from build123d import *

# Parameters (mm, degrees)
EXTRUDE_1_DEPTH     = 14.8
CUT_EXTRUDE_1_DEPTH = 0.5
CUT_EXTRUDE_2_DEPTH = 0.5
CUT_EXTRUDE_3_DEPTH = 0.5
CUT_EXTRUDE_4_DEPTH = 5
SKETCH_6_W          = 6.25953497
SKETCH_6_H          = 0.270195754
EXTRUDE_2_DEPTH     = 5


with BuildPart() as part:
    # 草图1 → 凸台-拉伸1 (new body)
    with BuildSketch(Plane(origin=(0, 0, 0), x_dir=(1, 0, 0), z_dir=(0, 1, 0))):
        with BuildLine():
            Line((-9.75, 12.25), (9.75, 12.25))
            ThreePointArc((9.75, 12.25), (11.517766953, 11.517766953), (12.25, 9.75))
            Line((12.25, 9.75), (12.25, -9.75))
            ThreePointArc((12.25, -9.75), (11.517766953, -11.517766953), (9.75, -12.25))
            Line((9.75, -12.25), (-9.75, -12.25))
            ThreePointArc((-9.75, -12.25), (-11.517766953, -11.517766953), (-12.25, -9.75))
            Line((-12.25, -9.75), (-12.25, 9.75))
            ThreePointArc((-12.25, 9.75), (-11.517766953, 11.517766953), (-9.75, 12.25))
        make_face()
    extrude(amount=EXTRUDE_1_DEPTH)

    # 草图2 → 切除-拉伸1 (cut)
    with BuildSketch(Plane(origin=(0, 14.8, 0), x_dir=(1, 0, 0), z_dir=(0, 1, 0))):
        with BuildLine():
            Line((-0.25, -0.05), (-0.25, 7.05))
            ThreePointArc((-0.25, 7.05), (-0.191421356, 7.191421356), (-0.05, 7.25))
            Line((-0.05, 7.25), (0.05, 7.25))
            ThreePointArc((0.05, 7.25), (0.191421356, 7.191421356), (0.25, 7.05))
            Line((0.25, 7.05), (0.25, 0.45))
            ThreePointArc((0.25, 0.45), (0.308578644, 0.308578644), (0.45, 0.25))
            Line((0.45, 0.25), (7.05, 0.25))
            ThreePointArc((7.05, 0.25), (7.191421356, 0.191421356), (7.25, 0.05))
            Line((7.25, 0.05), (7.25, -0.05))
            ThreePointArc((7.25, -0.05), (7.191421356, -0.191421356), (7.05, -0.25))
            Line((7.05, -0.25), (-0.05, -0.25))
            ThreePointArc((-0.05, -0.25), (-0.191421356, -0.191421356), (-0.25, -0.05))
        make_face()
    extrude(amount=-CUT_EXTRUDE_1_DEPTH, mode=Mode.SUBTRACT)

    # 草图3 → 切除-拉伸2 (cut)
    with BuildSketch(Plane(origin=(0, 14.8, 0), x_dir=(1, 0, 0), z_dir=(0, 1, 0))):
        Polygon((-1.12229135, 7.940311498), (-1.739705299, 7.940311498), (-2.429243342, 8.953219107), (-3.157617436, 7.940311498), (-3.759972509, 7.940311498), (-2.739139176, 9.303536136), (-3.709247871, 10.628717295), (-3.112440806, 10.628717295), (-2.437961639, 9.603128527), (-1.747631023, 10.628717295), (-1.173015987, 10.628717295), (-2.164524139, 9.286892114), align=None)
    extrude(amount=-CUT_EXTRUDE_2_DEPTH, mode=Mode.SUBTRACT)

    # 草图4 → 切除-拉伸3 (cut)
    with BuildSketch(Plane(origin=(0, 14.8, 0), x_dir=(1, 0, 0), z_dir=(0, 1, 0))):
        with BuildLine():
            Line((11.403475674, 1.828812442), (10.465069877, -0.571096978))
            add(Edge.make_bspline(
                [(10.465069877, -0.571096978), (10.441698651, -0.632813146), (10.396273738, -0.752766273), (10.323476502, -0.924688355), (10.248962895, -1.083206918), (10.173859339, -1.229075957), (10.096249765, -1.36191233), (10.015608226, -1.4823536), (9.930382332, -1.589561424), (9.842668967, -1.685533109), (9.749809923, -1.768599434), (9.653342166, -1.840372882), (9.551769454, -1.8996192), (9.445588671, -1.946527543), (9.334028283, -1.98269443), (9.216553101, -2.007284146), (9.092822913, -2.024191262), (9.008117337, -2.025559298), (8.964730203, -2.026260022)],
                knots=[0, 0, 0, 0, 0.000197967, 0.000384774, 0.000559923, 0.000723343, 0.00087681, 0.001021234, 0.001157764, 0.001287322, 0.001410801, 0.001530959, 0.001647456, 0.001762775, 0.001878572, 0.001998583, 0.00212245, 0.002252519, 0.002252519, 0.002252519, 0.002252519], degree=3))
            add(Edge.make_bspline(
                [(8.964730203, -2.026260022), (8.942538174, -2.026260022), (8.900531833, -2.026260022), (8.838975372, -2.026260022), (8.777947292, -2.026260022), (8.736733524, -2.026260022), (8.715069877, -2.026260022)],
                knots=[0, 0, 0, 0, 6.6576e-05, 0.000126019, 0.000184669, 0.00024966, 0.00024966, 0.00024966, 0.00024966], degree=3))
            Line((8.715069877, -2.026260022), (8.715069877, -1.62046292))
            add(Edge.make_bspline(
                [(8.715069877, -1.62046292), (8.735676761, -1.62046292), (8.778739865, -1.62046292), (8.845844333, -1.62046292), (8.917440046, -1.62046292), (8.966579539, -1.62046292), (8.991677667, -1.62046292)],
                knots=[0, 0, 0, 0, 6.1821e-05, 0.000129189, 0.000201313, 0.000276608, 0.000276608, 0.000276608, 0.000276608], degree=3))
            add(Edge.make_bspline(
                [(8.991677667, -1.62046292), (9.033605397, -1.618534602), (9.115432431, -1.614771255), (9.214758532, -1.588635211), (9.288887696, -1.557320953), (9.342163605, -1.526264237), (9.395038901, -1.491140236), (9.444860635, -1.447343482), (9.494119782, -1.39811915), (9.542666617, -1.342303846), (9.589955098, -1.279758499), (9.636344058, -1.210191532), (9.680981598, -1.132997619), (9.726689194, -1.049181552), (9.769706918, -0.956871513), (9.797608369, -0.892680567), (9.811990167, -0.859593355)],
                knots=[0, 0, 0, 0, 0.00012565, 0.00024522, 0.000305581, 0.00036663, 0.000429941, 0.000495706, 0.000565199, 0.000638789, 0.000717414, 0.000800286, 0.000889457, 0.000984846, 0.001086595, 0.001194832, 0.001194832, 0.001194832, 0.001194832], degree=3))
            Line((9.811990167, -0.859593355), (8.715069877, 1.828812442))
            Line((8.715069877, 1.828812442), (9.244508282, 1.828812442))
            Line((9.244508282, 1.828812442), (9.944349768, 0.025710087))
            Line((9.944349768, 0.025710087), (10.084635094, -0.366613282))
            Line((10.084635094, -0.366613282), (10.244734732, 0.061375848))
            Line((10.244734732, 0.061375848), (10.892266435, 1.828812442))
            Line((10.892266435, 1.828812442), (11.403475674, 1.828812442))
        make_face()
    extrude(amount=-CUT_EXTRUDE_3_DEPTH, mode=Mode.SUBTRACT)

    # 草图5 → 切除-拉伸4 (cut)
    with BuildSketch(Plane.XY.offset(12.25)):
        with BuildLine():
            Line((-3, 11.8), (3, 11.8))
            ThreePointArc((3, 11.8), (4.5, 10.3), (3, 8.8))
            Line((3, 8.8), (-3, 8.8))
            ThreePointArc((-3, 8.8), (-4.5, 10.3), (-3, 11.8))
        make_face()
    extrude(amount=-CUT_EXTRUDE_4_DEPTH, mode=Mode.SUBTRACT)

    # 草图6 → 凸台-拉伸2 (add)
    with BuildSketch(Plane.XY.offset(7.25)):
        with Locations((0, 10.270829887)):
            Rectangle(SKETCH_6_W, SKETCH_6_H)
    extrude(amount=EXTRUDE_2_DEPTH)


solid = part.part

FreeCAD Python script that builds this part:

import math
import FreeCAD as App
import Part
import Sketcher

V = App.Vector
Q = App.Units.Quantity


def add_polygon(sketch, points):
    """Adds a closed chain of lines whose ends are joined by coincident constraints."""
    first, n = sketch.GeometryCount, len(points)
    for a, b in zip(points, points[1:] + points[:1]):
        sketch.addGeometry(Part.LineSegment(App.Vector(*a, 0), App.Vector(*b, 0)), False)
    for i in range(n):
        sketch.addConstraint(Sketcher.Constraint("Coincident", first + i, 2, first + (i + 1) % n, 1))

doc = App.newDocument("Part")
params = doc.addObject("Spreadsheet::Sheet", "Params")
for row, (alias, value) in enumerate([
    ("sketch1_radius", "2.5 mm"),
    ("sketch1_width", "19.5 mm"),
    ("pad1_length", "14.8 mm"),
    ("sketch2_radius", "0.2 mm"),
    ("sketch2_width", "7.1 mm"),
    ("sketch2_width2", "6.6 mm"),
    ("pocket1_length", "0.5 mm"),
    ("pocket2_length", "0.5 mm"),
    ("pocket3_length", "0.5 mm"),
    ("sketch5_radius", "1.5 mm"),
    ("sketch5_width", "6 mm"),
    ("pocket4_length", "5 mm"),
    ("pad2_length", "5 mm"),
], start=1):
    params.set(f"A{row}", alias)
    params.set(f"B{row}", "=" + value)
    params.setAlias(f"B{row}", alias)

body = doc.addObject("PartDesign::Body", "Body")

sketch1 = body.newObject("Sketcher::SketchObject", "Sketch")
sketch1.AttachmentSupport = (doc.getObject("XZ_Plane"), [""])
sketch1.MapMode = "FlatFace"
sketch1.addGeometry(Part.LineSegment(V(9.75, -12.25, 0), V(-9.75, -12.25, 0)), False)
sketch1.addGeometry(Part.ArcOfCircle(Part.Circle(V(-9.75, -9.75, 0), V(0, 0, 1), 2.5), math.radians(180), math.radians(270)), False)
sketch1.addGeometry(Part.LineSegment(V(-12.25, -9.75, 0), V(-12.25, 9.75, 0)), False)
sketch1.addGeometry(Part.ArcOfCircle(Part.Circle(V(-9.75, 9.75, 0), V(0, 0, 1), 2.5), math.radians(90), math.radians(180)), False)
sketch1.addGeometry(Part.LineSegment(V(-9.75, 12.25, 0), V(9.75, 12.25, 0)), False)
sketch1.addGeometry(Part.ArcOfCircle(Part.Circle(V(9.75, 9.75, 0), V(0, 0, 1), 2.5), math.radians(0), math.radians(90)), False)
sketch1.addGeometry(Part.LineSegment(V(12.25, 9.75, 0), V(12.25, -9.75, 0)), False)
sketch1.addGeometry(Part.ArcOfCircle(Part.Circle(V(9.75, -9.75, 0), V(0, 0, 1), 2.5), math.radians(-90), math.radians(0)), False)
sketch1.addConstraint(Sketcher.Constraint("Tangent", 0, 2, 1, 2))
sketch1.addConstraint(Sketcher.Constraint("Tangent", 1, 1, 2, 1))
sketch1.addConstraint(Sketcher.Constraint("Tangent", 2, 2, 3, 2))
sketch1.addConstraint(Sketcher.Constraint("Tangent", 3, 1, 4, 1))
sketch1.addConstraint(Sketcher.Constraint("Tangent", 4, 2, 5, 2))
sketch1.addConstraint(Sketcher.Constraint("Tangent", 5, 1, 6, 1))
sketch1.addConstraint(Sketcher.Constraint("Tangent", 6, 2, 7, 2))
sketch1.addConstraint(Sketcher.Constraint("Tangent", 7, 1, 0, 1))
sketch1.addConstraint(Sketcher.Constraint("Horizontal", 0))
sketch1.addConstraint(Sketcher.Constraint("Vertical", 2))
sketch1.addConstraint(Sketcher.Constraint("Horizontal", 4))
sketch1.addConstraint(Sketcher.Constraint("Vertical", 6))
sketch1.addConstraint(Sketcher.Constraint("Equal", 1, 3))
sketch1.addConstraint(Sketcher.Constraint("Equal", 3, 5))
sketch1.addConstraint(Sketcher.Constraint("Equal", 5, 7))
sketch1.addConstraint(Sketcher.Constraint("Symmetric", 1, 3, 5, 3, -1, 1))
sketch1.addConstraint(Sketcher.Constraint("Equal", 4, 2))
sketch1.addConstraint(Sketcher.Constraint("Radius", 1, Q("2.5 mm")))
sketch1.addConstraint(Sketcher.Constraint("DistanceX", 0, 2, 0, 1, Q("19.5 mm")))
sketch1.setExpression("Constraints[17]", "Params.sketch1_radius")
sketch1.setExpression("Constraints[18]", "Params.sketch1_width")
pad1 = body.newObject("PartDesign::Pad", "Pad")
pad1.Profile = sketch1
pad1.setExpression("Length", "Params.pad1_length")
pad1.Reversed = True

sketch2 = body.newObject("Sketcher::SketchObject", "Sketch001")
sketch2.AttachmentSupport = (doc.getObject("XZ_Plane"), [""])
sketch2.MapMode = "FlatFace"
sketch2.AttachmentOffset = App.Placement(V(0, 0, -14.8), App.Rotation())
sketch2.addGeometry(Part.LineSegment(V(-0.25, -7.05, 0), V(-0.25, 0.05, 0)), False)
sketch2.addGeometry(Part.ArcOfCircle(Part.Circle(V(-0.05, 0.05, 0), V(0, 0, 1), 0.2), math.radians(90), math.radians(180)), False)
sketch2.addGeometry(Part.LineSegment(V(-0.05, 0.25, 0), V(7.05, 0.25, 0)), False)
sketch2.addGeometry(Part.ArcOfCircle(Part.Circle(V(7.05, 0.05, 0), V(0, 0, 1), 0.2), math.radians(0), math.radians(90)), False)
sketch2.addGeometry(Part.LineSegment(V(7.25, 0.05, 0), V(7.25, -0.05, 0)), False)
sketch2.addGeometry(Part.ArcOfCircle(Part.Circle(V(7.05, -0.05, 0), V(0, 0, 1), 0.2), math.radians(-90), math.radians(0)), False)
sketch2.addGeometry(Part.LineSegment(V(7.05, -0.25, 0), V(0.45, -0.25, 0)), False)
sketch2.addGeometry(Part.ArcOfCircle(Part.Circle(V(0.45, -0.45, 0), V(0, 0, 1), 0.2), math.radians(90), math.radians(180)), False)
sketch2.addGeometry(Part.LineSegment(V(0.25, -0.45, 0), V(0.25, -7.05, 0)), False)
sketch2.addGeometry(Part.ArcOfCircle(Part.Circle(V(0.05, -7.05, 0), V(0, 0, 1), 0.2), math.radians(-90), math.radians(0)), False)
sketch2.addGeometry(Part.LineSegment(V(0.05, -7.25, 0), V(-0.05, -7.25, 0)), False)
sketch2.addGeometry(Part.ArcOfCircle(Part.Circle(V(-0.05, -7.05, 0), V(0, 0, 1), 0.2), math.radians(-180), math.radians(-90)), False)
sketch2.addConstraint(Sketcher.Constraint("Tangent", 0, 2, 1, 2))
sketch2.addConstraint(Sketcher.Constraint("Tangent", 1, 1, 2, 1))
sketch2.addConstraint(Sketcher.Constraint("Tangent", 2, 2, 3, 2))
sketch2.addConstraint(Sketcher.Constraint("Tangent", 3, 1, 4, 1))
sketch2.addConstraint(Sketcher.Constraint("Tangent", 4, 2, 5, 2))
sketch2.addConstraint(Sketcher.Constraint("Tangent", 5, 1, 6, 1))
sketch2.addConstraint(Sketcher.Constraint("Tangent", 6, 2, 7, 1))
sketch2.addConstraint(Sketcher.Constraint("Tangent", 7, 2, 8, 1))
sketch2.addConstraint(Sketcher.Constraint("Tangent", 8, 2, 9, 2))
sketch2.addConstraint(Sketcher.Constraint("Tangent", 9, 1, 10, 1))
sketch2.addConstraint(Sketcher.Constraint("Tangent", 10, 2, 11, 2))
sketch2.addConstraint(Sketcher.Constraint("Tangent", 11, 1, 0, 1))
sketch2.addConstraint(Sketcher.Constraint("Vertical", 0))
sketch2.addConstraint(Sketcher.Constraint("Horizontal", 2))
sketch2.addConstraint(Sketcher.Constraint("Vertical", 4))
sketch2.addConstraint(Sketcher.Constraint("Horizontal", 6))
sketch2.addConstraint(Sketcher.Constraint("Vertical", 8))
sketch2.addConstraint(Sketcher.Constraint("Horizontal", 10))
sketch2.addConstraint(Sketcher.Constraint("Equal", 1, 3))
sketch2.addConstraint(Sketcher.Constraint("Equal", 3, 5))
sketch2.addConstraint(Sketcher.Constraint("Equal", 5, 7))
sketch2.addConstraint(Sketcher.Constraint("Equal", 7, 9))
sketch2.addConstraint(Sketcher.Constraint("Equal", 9, 11))
sketch2.addConstraint(Sketcher.Constraint("Equal", 2, 0))
sketch2.addConstraint(Sketcher.Constraint("Equal", 10, 4))
sketch2.addConstraint(Sketcher.Constraint("Radius", 1, Q("0.2 mm")))
sketch2.addConstraint(Sketcher.Constraint("DistanceX", 2, 1, 2, 2, Q("7.1 mm")))
sketch2.addConstraint(Sketcher.Constraint("DistanceX", 6, 2, 6, 1, Q("6.6 mm")))
sketch2.addConstraint(Sketcher.Constraint("DistanceX", 1, 3, -1, 1, Q("0.05 mm")))
sketch2.addConstraint(Sketcher.Constraint("DistanceY", -1, 1, 1, 3, Q("0.05 mm")))
sketch2.setExpression("Constraints[25]", "Params.sketch2_radius")
sketch2.setExpression("Constraints[26]", "Params.sketch2_width")
sketch2.setExpression("Constraints[27]", "Params.sketch2_width2")
pocket1 = body.newObject("PartDesign::Pocket", "Pocket")
pocket1.Profile = sketch2
pocket1.setExpression("Length", "Params.pocket1_length")
pocket1.Reversed = True

sketch3 = body.newObject("Sketcher::SketchObject", "Sketch002")
sketch3.AttachmentSupport = (doc.getObject("XZ_Plane"), [""])
sketch3.MapMode = "FlatFace"
sketch3.AttachmentOffset = App.Placement(V(0, 0, -14.8), App.Rotation())
add_polygon(sketch3, [(-1.739705, -7.940311), (-1.122291, -7.940311), (-2.164524, -9.286892), (-1.173016, -10.628717), (-1.747631, -10.628717), (-2.437962, -9.603129), (-3.112441, -10.628717), (-3.709248, -10.628717), (-2.739139, -9.303536), (-3.759973, -7.940311), (-3.157617, -7.940311), (-2.429243, -8.953219)])
sketch3.addConstraint(Sketcher.Constraint("Horizontal", 0))
sketch3.addConstraint(Sketcher.Constraint("Horizontal", 3))
sketch3.addConstraint(Sketcher.Constraint("Horizontal", 6))
sketch3.addConstraint(Sketcher.Constraint("Horizontal", 9))
sketch3.addConstraint(Sketcher.Constraint("Horizontal", 3, 2, 5, 2))
sketch3.addConstraint(Sketcher.Constraint("Horizontal", 0, 2, 8, 2))
sketch3.addConstraint(Sketcher.Constraint("Distance", 1, Q("1.7028 mm")))
sketch3.addConstraint(Sketcher.Constraint("Distance", 5, Q("1.227499 mm")))
sketch3.addConstraint(Sketcher.Constraint("Distance", 10, Q("1.247602 mm")))
sketch3.addConstraint(Sketcher.Constraint("DistanceX", 5, 2, 7, 2, Q("0.373302 mm")))
sketch3.addConstraint(Sketcher.Constraint("Distance", 4, Q("1.23628 mm")))
sketch3.addConstraint(Sketcher.Constraint("Distance", 7, Q("1.64232 mm")))
sketch3.addConstraint(Sketcher.Constraint("Distance", 8, Q("1.70308 mm")))
sketch3.addConstraint(Sketcher.Constraint("DistanceX", 0, 1, 0, 2, Q("0.617414 mm")))
sketch3.addConstraint(Sketcher.Constraint("DistanceX", 3, 2, 3, 1, Q("0.574615 mm")))
sketch3.addConstraint(Sketcher.Constraint("DistanceX", 6, 2, 6, 1, Q("0.596807 mm")))
sketch3.addConstraint(Sketcher.Constraint("DistanceX", 9, 1, 9, 2, Q("0.602355 mm")))
sketch3.addConstraint(Sketcher.Constraint("DistanceX", 0, 2, -1, 1, Q("1.122291 mm")))
sketch3.addConstraint(Sketcher.Constraint("DistanceY", 0, 2, -1, 1, Q("7.940311 mm")))
sketch3.addConstraint(Sketcher.Constraint("DistanceX", 3, 2, -1, 1, Q("1.747631 mm")))
sketch3.addConstraint(Sketcher.Constraint("DistanceX", 4, 2, -1, 1, Q("2.437962 mm")))
sketch3.addConstraint(Sketcher.Constraint("DistanceY", 4, 2, -1, 1, Q("9.603129 mm")))
sketch3.addConstraint(Sketcher.Constraint("DistanceY", 10, 2, -1, 1, Q("8.953219 mm")))
sketch3.addConstraint(Sketcher.Constraint("DistanceY", 1, 2, 0, 2, Q("1.346581 mm")))
pocket2 = body.newObject("PartDesign::Pocket", "Pocket001")
pocket2.Profile = sketch3
pocket2.setExpression("Length", "Params.pocket2_length")
pocket2.Reversed = True

sketch4 = body.newObject("Sketcher::SketchObject", "Sketch003")
sketch4.AttachmentSupport = (doc.getObject("XZ_Plane"), [""])
sketch4.MapMode = "FlatFace"
sketch4.AttachmentOffset = App.Placement(V(0, 0, -14.8), App.Rotation())
sketch4.addGeometry(Part.LineSegment(V(10.46507, 0.571097, 0), V(11.403476, -1.828812, 0)), False)
sketch4.addGeometry(Part.LineSegment(V(11.403476, -1.828812, 0), V(10.892266, -1.828812, 0)), False)
sketch4.addGeometry(Part.LineSegment(V(10.892266, -1.828812, 0), V(10.244735, -0.061376, 0)), False)
sketch4.addGeometry(Part.LineSegment(V(10.244735, -0.061376, 0), V(10.084635, 0.366613, 0)), False)
sketch4.addGeometry(Part.LineSegment(V(10.084635, 0.366613, 0), V(9.94435, -0.02571, 0)), False)
sketch4.addGeometry(Part.LineSegment(V(9.94435, -0.02571, 0), V(9.244508, -1.828812, 0)), False)
sketch4.addGeometry(Part.LineSegment(V(9.244508, -1.828812, 0), V(8.71507, -1.828812, 0)), False)
sketch4.addGeometry(Part.LineSegment(V(8.71507, -1.828812, 0), V(9.81199, 0.859593, 0)), False)
sketch4.addGeometry(Part.BSplineCurve([V(8.991678, 1.620463, 0), V(9.033605, 1.618535, 0), V(9.115432, 1.614771, 0), V(9.214759, 1.588635, 0), V(9.288888, 1.557321, 0), V(9.342164, 1.526264, 0), V(9.395039, 1.49114, 0), V(9.444861, 1.447343, 0), V(9.49412, 1.398119, 0), V(9.542667, 1.342304, 0), V(9.589955, 1.279758, 0), V(9.636344, 1.210192, 0), V(9.680982, 1.132998, 0), V(9.726689, 1.049182, 0), V(9.769707, 0.956872, 0), V(9.797608, 0.892681, 0), V(9.81199, 0.859593, 0)], [4, 1, 1, 1, 1, 1, 1, 1, 1, 1, 1, 1, 1, 1, 4], [0, 0.00012565, 0.00024522, 0.000305581, 0.00036663, 0.000429941, 0.000495706, 0.000565199, 0.000638789, 0.000717414, 0.000800286, 0.000889457, 0.000984846, 0.001086595, 0.001194832], False, 3, [1, 1, 1, 1, 1, 1, 1, 1, 1, 1, 1, 1, 1, 1, 1, 1, 1], False), False)
sketch4.addGeometry(Part.BSplineCurve([V(8.71507, 1.620463, 0), V(8.735677, 1.620463, 0), V(8.77874, 1.620463, 0), V(8.845844, 1.620463, 0), V(8.91744, 1.620463, 0), V(8.96658, 1.620463, 0), V(8.991678, 1.620463, 0)], [4, 1, 1, 1, 4], [0, 0.000061821, 0.000129189, 0.000201313, 0.000276608], False, 3, [1, 1, 1, 1, 1, 1, 1], False), False)
sketch4.addGeometry(Part.LineSegment(V(8.71507, 1.620463, 0), V(8.71507, 2.02626, 0)), False)
sketch4.addGeometry(Part.BSplineCurve([V(8.96473, 2.02626, 0), V(8.942538, 2.02626, 0), V(8.900532, 2.02626, 0), V(8.838975, 2.02626, 0), V(8.777947, 2.02626, 0), V(8.736734, 2.02626, 0), V(8.71507, 2.02626, 0)], [4, 1, 1, 1, 4], [0, 0.000066576, 0.000126019, 0.000184669, 0.00024966], False, 3, [1, 1, 1, 1, 1, 1, 1], False), False)
sketch4.addGeometry(Part.BSplineCurve([V(10.46507, 0.571097, 0), V(10.441699, 0.632813, 0), V(10.396274, 0.752766, 0), V(10.323477, 0.924688, 0), V(10.248963, 1.083207, 0), V(10.173859, 1.229076, 0), V(10.09625, 1.361912, 0), V(10.015608, 1.482354, 0), V(9.930382, 1.589561, 0), V(9.842669, 1.685533, 0), V(9.74981, 1.768599, 0), V(9.653342, 1.840373, 0), V(9.551769, 1.899619, 0), V(9.445589, 1.946528, 0), V(9.334028, 1.982694, 0), V(9.216553, 2.007284, 0), V(9.092823, 2.024191, 0), V(9.008117, 2.025559, 0), V(8.96473, 2.02626, 0)], [4, 1, 1, 1, 1, 1, 1, 1, 1, 1, 1, 1, 1, 1, 1, 1, 4], [0, 0.000197967, 0.000384774, 0.000559923, 0.000723343, 0.00087681, 0.001021234, 0.001157764, 0.001287322, 0.001410801, 0.001530959, 0.001647456, 0.001762775, 0.001878572, 0.001998583, 0.00212245, 0.002252519], False, 3, [1, 1, 1, 1, 1, 1, 1, 1, 1, 1, 1, 1, 1, 1, 1, 1, 1, 1, 1], False), False)
sketch4.addConstraint(Sketcher.Constraint("Block", 8))
sketch4.addConstraint(Sketcher.Constraint("Block", 9))
sketch4.addConstraint(Sketcher.Constraint("Block", 11))
sketch4.addConstraint(Sketcher.Constraint("Block", 12))
sketch4.addConstraint(Sketcher.Constraint("Coincident", 0, 2, 1, 1))
sketch4.addConstraint(Sketcher.Constraint("Coincident", 1, 2, 2, 1))
sketch4.addConstraint(Sketcher.Constraint("Coincident", 2, 2, 3, 1))
sketch4.addConstraint(Sketcher.Constraint("Coincident", 3, 2, 4, 1))
sketch4.addConstraint(Sketcher.Constraint("Coincident", 4, 2, 5, 1))
sketch4.addConstraint(Sketcher.Constraint("Coincident", 5, 2, 6, 1))
sketch4.addConstraint(Sketcher.Constraint("Coincident", 6, 2, 7, 1))
sketch4.addConstraint(Sketcher.Constraint("Coincident", 7, 2, 8, 2))
sketch4.addConstraint(Sketcher.Constraint("Coincident", 9, 1, 10, 1))
sketch4.addConstraint(Sketcher.Constraint("Coincident", 10, 2, 11, 2))
sketch4.addConstraint(Sketcher.Constraint("Coincident", 12, 1, 0, 1))
sketch4.addConstraint(Sketcher.Constraint("Horizontal", 1))
sketch4.addConstraint(Sketcher.Constraint("Horizontal", 6))
sketch4.addConstraint(Sketcher.Constraint("Horizontal", 1, 2, 5, 2))
sketch4.addConstraint(Sketcher.Constraint("Vertical", 6, 2, 10, 2))
sketch4.addConstraint(Sketcher.Constraint("DistanceX", 1, 2, 1, 1, Q("0.511209 mm")))
sketch4.addConstraint(Sketcher.Constraint("DistanceX", 6, 2, 6, 1, Q("0.529438 mm")))
sketch4.addConstraint(Sketcher.Constraint("DistanceX", 3, 2, 2, 2, Q("0.1601 mm")))
sketch4.addConstraint(Sketcher.Constraint("Distance", 2, Q("1.88232 mm")))
sketch4.addConstraint(Sketcher.Constraint("Distance", 4, Q("0.41665 mm")))
sketch4.addConstraint(Sketcher.Constraint("DistanceX", -1, 1, 4, 2, Q("9.94435 mm")))
sketch4.addConstraint(Sketcher.Constraint("DistanceY", 4, 2, -1, 1, Q("0.02571 mm")))
sketch4.addConstraint(Sketcher.Constraint("DistanceX", 2, 2, 1, 2, Q("0.647532 mm")))
sketch4.addConstraint(Sketcher.Constraint("DistanceY", 2, 2, 3, 2, Q("0.427989 mm")))
sketch4.addConstraint(Sketcher.Constraint("DistanceX", 5, 2, 1, 2, Q("1.647758 mm")))
pocket3 = body.newObject("PartDesign::Pocket", "Pocket002")
pocket3.Profile = sketch4
pocket3.setExpression("Length", "Params.pocket3_length")
pocket3.Reversed = True

sketch5 = body.newObject("Sketcher::SketchObject", "Sketch004")
sketch5.AttachmentSupport = (doc.getObject("XY_Plane"), [""])
sketch5.MapMode = "FlatFace"
sketch5.AttachmentOffset = App.Placement(V(0, 0, 12.25), App.Rotation())
sketch5.addGeometry(Part.LineSegment(V(3, 11.8, 0), V(-3, 11.8, 0)), False)
sketch5.addGeometry(Part.ArcOfCircle(Part.Circle(V(-3, 10.3, 0), V(0, 0, 1), 1.5), math.radians(90), math.radians(270)), False)
sketch5.addGeometry(Part.LineSegment(V(-3, 8.8, 0), V(3, 8.8, 0)), False)
sketch5.addGeometry(Part.ArcOfCircle(Part.Circle(V(3, 10.3, 0), V(0, 0, 1), 1.5), math.radians(-90), math.radians(90)), False)
sketch5.addConstraint(Sketcher.Constraint("Tangent", 0, 2, 1, 1))
sketch5.addConstraint(Sketcher.Constraint("Tangent", 1, 2, 2, 1))
sketch5.addConstraint(Sketcher.Constraint("Tangent", 2, 2, 3, 1))
sketch5.addConstraint(Sketcher.Constraint("Tangent", 3, 2, 0, 1))
sketch5.addConstraint(Sketcher.Constraint("Horizontal", 0))
sketch5.addConstraint(Sketcher.Constraint("Horizontal", 2))
sketch5.addConstraint(Sketcher.Constraint("Radius", 1, Q("1.5 mm")))
sketch5.addConstraint(Sketcher.Constraint("DistanceX", 0, 2, 0, 1, Q("6 mm")))
sketch5.addConstraint(Sketcher.Constraint("DistanceX", 1, 3, -1, 1, Q("3 mm")))
sketch5.addConstraint(Sketcher.Constraint("DistanceY", -1, 1, 1, 3, Q("10.3 mm")))
sketch5.setExpression("Constraints[6]", "Params.sketch5_radius")
sketch5.setExpression("Constraints[7]", "Params.sketch5_width")
pocket4 = body.newObject("PartDesign::Pocket", "Pocket003")
pocket4.Profile = sketch5
pocket4.setExpression("Length", "Params.pocket4_length")

sketch6 = body.newObject("Sketcher::SketchObject", "Sketch005")
sketch6.AttachmentSupport = (doc.getObject("XY_Plane"), [""])
sketch6.MapMode = "FlatFace"
sketch6.AttachmentOffset = App.Placement(V(0, 0, 7.25), App.Rotation())
add_polygon(sketch6, [(-3.129767, 10.405928), (-3.129767, 10.135732), (3.129767, 10.135732), (3.129767, 10.405928)])
sketch6.addConstraint(Sketcher.Constraint("Vertical", 0))
sketch6.addConstraint(Sketcher.Constraint("Horizontal", 1))
sketch6.addConstraint(Sketcher.Constraint("Vertical", 2))
sketch6.addConstraint(Sketcher.Constraint("Horizontal", 3))
sketch6.addConstraint(Sketcher.Constraint("DistanceX", 1, 1, 1, 2, Q("6.259535 mm")))
sketch6.addConstraint(Sketcher.Constraint("DistanceY", 0, 2, 0, 1, Q("0.270196 mm")))
sketch6.addConstraint(Sketcher.Constraint("DistanceX", 0, 2, -1, 1, Q("3.129767 mm")))
sketch6.addConstraint(Sketcher.Constraint("DistanceY", -1, 1, 0, 2, Q("10.135732 mm")))
pad2 = body.newObject("PartDesign::Pad", "Pad001")
pad2.Profile = sketch6
pad2.setExpression("Length", "Params.pad2_length")

doc.recompute()
